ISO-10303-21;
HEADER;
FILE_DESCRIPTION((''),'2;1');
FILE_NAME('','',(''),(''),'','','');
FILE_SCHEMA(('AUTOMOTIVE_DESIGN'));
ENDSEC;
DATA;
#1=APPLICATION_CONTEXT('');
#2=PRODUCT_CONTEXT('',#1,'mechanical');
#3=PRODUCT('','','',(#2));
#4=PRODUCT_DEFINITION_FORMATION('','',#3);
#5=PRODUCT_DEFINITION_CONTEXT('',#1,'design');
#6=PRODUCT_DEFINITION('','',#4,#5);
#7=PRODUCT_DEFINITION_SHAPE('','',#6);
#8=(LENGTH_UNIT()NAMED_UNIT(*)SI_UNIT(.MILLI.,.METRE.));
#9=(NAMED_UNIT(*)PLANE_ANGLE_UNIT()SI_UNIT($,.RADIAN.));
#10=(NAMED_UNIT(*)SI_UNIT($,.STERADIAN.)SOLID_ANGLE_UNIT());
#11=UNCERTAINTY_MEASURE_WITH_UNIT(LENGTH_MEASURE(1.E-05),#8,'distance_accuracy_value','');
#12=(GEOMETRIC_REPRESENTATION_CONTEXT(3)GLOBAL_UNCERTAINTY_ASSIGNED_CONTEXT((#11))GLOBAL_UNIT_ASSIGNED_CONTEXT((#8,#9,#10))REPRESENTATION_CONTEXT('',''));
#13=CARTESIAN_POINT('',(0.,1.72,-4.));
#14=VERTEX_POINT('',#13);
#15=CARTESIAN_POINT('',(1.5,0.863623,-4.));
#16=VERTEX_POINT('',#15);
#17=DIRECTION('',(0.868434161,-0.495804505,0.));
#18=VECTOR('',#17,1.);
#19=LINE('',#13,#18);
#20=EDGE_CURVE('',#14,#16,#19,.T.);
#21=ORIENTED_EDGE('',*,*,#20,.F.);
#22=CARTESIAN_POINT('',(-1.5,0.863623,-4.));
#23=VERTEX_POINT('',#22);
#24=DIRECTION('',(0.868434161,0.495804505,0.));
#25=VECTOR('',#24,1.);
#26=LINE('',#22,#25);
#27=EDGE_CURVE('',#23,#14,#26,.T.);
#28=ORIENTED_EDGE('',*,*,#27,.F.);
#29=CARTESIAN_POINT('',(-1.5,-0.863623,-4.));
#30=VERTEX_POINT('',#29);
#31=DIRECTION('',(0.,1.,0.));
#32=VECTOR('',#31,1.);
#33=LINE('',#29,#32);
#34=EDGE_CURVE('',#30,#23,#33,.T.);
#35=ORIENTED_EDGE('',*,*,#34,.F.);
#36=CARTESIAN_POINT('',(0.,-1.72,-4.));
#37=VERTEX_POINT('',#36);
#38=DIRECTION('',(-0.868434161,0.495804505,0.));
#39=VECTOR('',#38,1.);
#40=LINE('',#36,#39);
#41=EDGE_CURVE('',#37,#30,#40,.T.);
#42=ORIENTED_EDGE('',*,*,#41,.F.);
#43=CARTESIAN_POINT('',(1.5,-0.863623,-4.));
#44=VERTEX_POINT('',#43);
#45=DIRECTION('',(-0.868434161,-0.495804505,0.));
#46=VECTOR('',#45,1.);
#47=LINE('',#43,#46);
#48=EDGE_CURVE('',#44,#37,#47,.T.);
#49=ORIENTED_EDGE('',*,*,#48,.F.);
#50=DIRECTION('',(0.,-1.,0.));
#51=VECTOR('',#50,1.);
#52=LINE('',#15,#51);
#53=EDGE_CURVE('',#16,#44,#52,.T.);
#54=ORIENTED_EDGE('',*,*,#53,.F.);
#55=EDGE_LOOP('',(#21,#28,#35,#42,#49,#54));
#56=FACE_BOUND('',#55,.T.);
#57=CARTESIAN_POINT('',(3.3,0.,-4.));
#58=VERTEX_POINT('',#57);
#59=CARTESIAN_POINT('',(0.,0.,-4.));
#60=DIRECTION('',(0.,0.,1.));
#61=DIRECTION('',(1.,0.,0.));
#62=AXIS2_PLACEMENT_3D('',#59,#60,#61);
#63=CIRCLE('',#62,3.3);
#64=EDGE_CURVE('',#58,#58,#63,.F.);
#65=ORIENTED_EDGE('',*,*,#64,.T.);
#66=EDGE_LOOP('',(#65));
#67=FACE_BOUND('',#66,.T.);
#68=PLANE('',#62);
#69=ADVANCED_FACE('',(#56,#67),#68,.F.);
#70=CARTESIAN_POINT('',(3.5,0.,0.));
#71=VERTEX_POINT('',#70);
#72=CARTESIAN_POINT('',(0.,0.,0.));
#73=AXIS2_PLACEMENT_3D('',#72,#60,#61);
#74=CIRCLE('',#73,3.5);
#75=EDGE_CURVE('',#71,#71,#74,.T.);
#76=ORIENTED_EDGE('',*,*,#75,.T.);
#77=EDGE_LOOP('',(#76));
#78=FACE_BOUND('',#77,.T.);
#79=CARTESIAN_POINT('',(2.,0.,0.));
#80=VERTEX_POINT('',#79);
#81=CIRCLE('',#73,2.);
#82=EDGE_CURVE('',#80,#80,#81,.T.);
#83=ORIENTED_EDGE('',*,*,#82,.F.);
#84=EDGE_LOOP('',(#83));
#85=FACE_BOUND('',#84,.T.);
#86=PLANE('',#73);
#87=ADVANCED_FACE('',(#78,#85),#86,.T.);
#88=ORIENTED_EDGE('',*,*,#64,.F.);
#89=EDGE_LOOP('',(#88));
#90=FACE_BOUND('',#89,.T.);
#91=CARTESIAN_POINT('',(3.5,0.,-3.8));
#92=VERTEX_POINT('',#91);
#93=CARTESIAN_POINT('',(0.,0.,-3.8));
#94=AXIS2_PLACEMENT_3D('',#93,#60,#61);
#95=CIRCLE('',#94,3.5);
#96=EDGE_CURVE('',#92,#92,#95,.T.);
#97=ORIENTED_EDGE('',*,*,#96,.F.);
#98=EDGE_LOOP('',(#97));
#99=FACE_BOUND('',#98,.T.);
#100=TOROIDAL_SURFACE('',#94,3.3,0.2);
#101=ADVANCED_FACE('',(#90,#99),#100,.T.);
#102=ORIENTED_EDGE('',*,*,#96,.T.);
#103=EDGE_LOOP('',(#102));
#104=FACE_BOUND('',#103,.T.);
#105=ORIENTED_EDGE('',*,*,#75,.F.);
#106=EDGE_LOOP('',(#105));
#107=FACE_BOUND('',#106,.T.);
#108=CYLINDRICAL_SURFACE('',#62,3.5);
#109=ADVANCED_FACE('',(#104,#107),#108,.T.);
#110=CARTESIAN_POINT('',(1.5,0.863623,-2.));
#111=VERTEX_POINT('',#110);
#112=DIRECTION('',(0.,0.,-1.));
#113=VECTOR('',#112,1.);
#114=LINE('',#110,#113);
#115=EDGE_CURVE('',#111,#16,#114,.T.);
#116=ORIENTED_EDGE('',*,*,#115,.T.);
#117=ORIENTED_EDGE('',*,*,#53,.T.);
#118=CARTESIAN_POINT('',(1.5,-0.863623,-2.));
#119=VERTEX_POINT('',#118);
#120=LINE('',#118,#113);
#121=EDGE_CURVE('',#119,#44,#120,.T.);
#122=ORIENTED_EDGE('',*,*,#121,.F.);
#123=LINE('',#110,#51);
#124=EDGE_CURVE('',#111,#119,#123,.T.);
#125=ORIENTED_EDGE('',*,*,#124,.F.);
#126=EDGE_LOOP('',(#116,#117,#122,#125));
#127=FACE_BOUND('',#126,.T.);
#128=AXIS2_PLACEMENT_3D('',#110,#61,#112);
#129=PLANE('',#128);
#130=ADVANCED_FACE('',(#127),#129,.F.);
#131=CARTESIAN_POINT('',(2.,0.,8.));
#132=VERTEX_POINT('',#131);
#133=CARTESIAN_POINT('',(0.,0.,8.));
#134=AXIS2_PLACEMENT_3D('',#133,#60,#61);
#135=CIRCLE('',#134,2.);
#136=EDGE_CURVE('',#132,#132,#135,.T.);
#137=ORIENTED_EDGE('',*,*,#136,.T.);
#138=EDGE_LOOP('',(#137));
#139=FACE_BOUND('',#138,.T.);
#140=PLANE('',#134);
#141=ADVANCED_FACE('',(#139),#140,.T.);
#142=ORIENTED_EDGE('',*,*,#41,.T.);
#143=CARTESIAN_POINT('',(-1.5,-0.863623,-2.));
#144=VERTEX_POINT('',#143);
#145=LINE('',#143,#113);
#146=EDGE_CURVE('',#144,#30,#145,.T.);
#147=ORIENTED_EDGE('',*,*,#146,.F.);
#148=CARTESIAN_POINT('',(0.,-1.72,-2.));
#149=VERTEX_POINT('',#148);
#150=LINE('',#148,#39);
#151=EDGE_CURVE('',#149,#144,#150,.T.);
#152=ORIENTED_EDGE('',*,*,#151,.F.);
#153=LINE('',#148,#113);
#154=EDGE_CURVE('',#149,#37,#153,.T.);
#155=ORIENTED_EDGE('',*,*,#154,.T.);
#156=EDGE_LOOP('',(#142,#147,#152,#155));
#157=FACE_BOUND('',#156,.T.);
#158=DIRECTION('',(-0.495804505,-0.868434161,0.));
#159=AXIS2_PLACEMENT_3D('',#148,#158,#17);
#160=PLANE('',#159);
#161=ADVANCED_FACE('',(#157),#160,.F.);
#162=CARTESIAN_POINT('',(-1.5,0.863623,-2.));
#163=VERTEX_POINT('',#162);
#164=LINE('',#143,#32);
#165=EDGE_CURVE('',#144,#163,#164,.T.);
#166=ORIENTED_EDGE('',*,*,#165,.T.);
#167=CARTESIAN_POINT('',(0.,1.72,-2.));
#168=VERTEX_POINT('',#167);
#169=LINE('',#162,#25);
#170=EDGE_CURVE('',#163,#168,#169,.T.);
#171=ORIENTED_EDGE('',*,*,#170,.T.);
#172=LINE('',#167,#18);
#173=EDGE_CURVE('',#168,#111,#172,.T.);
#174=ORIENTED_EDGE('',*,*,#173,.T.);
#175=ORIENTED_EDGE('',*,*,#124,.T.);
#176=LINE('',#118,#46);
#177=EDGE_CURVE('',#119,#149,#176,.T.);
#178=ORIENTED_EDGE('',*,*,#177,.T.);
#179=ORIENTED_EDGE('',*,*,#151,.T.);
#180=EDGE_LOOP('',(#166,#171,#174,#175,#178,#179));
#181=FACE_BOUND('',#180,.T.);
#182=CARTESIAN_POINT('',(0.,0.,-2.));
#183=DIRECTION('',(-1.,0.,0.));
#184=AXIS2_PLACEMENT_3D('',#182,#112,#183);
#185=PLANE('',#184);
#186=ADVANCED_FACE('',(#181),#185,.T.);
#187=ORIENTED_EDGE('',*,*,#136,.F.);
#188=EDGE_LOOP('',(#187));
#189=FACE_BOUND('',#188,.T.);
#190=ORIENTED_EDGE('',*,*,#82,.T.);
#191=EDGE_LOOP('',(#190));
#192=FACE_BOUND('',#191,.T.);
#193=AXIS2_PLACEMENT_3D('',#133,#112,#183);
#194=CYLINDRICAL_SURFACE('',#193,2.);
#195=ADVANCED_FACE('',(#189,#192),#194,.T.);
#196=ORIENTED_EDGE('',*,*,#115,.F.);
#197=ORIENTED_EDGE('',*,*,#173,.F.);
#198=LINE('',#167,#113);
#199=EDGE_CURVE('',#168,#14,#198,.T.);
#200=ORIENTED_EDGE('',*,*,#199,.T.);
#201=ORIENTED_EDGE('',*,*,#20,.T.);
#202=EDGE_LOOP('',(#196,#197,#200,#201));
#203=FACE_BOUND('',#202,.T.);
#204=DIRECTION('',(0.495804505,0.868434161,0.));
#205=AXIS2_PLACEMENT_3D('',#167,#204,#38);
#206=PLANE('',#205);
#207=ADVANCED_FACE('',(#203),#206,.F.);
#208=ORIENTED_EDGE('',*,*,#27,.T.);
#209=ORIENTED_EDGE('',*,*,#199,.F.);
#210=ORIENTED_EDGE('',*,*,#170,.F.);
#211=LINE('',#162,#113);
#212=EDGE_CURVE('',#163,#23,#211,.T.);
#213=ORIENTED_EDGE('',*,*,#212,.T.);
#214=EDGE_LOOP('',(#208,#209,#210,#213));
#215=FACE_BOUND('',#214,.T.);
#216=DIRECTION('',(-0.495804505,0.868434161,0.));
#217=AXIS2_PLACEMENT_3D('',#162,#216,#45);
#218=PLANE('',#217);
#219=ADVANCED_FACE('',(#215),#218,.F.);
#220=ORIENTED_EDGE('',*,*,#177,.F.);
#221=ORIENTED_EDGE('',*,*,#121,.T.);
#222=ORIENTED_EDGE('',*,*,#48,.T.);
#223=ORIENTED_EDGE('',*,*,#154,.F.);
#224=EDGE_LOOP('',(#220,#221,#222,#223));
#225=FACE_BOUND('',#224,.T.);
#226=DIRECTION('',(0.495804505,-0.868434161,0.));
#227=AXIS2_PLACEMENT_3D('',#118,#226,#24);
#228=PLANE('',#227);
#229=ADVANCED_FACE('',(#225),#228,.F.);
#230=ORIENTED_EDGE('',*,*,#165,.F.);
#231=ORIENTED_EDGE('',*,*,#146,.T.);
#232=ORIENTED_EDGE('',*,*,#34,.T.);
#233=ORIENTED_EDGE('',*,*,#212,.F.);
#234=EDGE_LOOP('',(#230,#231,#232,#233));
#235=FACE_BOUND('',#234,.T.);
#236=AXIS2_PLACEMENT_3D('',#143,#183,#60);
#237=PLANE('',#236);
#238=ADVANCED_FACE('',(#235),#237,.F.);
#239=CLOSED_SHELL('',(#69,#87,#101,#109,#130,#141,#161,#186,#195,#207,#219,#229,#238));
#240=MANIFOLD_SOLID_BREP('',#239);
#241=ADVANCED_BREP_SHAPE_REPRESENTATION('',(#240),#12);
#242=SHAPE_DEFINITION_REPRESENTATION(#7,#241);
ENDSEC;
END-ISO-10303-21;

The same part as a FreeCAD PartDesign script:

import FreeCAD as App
import Part
import Sketcher
Q = App.Units.Quantity


def edges_at(feature, points):
    """Names of the edges that pass closest to the given points."""
    edges = feature.Shape.Edges
    near = lambda p: min(range(len(edges)), key=lambda i: edges[i].distToShape(Part.Vertex(*p))[0])
    return sorted({f"Edge{near(p) + 1}" for p in points})

doc = App.newDocument("Part")
body = doc.addObject("PartDesign::Body", "Body")

# Sketch on XY plane
sketch1 = body.newObject("Sketcher::SketchObject", "Sketch")
sketch1.AttachmentSupport = (doc.getObject("XY_Plane"), [""])
sketch1.MapMode = "FlatFace"
sketch1.addGeometry(Part.Circle(App.Vector(0, 0, 0), App.Vector(0, 0, 1), 2), False)
sketch1.addConstraint([
    Sketcher.Constraint("Coincident", 0, 3, -1, 1),
    Sketcher.Constraint("Diameter", 0, Q("4 mm")),
])
pad1 = body.newObject("PartDesign::Pad", "Pad")
pad1.Profile = sketch1
pad1.Length = 8

# Sketch on XY plane
sketch2 = body.newObject("Sketcher::SketchObject", "Sketch001")
sketch2.AttachmentSupport = (doc.getObject("XY_Plane"), [""])
sketch2.MapMode = "FlatFace"
sketch2.addGeometry(Part.Circle(App.Vector(0, 0, 0), App.Vector(0, 0, 1), 3.5), False)
sketch2.addConstraint([
    Sketcher.Constraint("Coincident", 0, 3, -1, 1),
    Sketcher.Constraint("Diameter", 0, Q("7 mm")),
])
pad2 = body.newObject("PartDesign::Pad", "Pad001")
pad2.Profile = sketch2
pad2.Length = 4
pad2.Reversed = True

# Sketch on XY plane
sketch3 = body.newObject("Sketcher::SketchObject", "Sketch002")
sketch3.AttachmentSupport = (doc.getObject("XY_Plane"), [""])
sketch3.MapMode = "FlatFace"
sketch3.AttachmentOffset = App.Placement(App.Vector(0, 0, -4), App.Rotation())
sketch3.addGeometry([
    Part.LineSegment(App.Vector(0, 1.7, 0), App.Vector(1.5, 0.9, 0)),  # 0
    Part.LineSegment(App.Vector(1.5, 0.9, 0), App.Vector(1.5, -0.9, 0)),  # 1
    Part.LineSegment(App.Vector(1.5, -0.9, 0), App.Vector(0, -1.7, 0)),  # 2
    Part.LineSegment(App.Vector(0, -1.7, 0), App.Vector(-1.5, -0.9, 0)),  # 3
    Part.LineSegment(App.Vector(-1.5, -0.9, 0), App.Vector(-1.5, 0.9, 0)),  # 4
    Part.LineSegment(App.Vector(-1.5, 0.9, 0), App.Vector(0, 1.7, 0)),  # 5
], False)
sketch3.addConstraint([
    Sketcher.Constraint("Coincident", 0, 2, 1, 1),
    Sketcher.Constraint("Coincident", 1, 2, 2, 1),
    Sketcher.Constraint("Coincident", 2, 2, 3, 1),
    Sketcher.Constraint("Coincident", 3, 2, 4, 1),
    Sketcher.Constraint("Coincident", 4, 2, 5, 1),
    Sketcher.Constraint("Coincident", 5, 2, 0, 1),
    Sketcher.Constraint("Vertical", 1),
    Sketcher.Constraint("Vertical", 4),
    Sketcher.Constraint("Symmetric", 0, 2, 3, 2, -1, 1),
    Sketcher.Constraint("Symmetric", 2, 2, 5, 2, -1, 1),
    Sketcher.Constraint("PointOnObject", 2, 2, -2),
    Sketcher.Constraint("Parallel", 2, 5),
    Sketcher.Constraint("Horizontal", 1, 2, 3, 2),
    Sketcher.Constraint("DistanceX", 3, 2, 1, 2, Q("3 mm")),
    Sketcher.Constraint("DistanceY", 2, 2, -1, 1, Q("1.72 mm")),
    Sketcher.Constraint("DistanceY", 1, 2, 1, 1, Q("1.727247 mm")),
])
pocket1 = body.newObject("PartDesign::Pocket", "Pocket")
pocket1.Profile = sketch3
pocket1.Length = 2
pocket1.Reversed = True
doc.recompute()

fillet = body.newObject("PartDesign::Fillet", "Fillet")
fillet.Base = (pocket1, edges_at(pocket1, [(-3.5, 0, -4)]))
fillet.Radius = 0.2

doc.recompute()
